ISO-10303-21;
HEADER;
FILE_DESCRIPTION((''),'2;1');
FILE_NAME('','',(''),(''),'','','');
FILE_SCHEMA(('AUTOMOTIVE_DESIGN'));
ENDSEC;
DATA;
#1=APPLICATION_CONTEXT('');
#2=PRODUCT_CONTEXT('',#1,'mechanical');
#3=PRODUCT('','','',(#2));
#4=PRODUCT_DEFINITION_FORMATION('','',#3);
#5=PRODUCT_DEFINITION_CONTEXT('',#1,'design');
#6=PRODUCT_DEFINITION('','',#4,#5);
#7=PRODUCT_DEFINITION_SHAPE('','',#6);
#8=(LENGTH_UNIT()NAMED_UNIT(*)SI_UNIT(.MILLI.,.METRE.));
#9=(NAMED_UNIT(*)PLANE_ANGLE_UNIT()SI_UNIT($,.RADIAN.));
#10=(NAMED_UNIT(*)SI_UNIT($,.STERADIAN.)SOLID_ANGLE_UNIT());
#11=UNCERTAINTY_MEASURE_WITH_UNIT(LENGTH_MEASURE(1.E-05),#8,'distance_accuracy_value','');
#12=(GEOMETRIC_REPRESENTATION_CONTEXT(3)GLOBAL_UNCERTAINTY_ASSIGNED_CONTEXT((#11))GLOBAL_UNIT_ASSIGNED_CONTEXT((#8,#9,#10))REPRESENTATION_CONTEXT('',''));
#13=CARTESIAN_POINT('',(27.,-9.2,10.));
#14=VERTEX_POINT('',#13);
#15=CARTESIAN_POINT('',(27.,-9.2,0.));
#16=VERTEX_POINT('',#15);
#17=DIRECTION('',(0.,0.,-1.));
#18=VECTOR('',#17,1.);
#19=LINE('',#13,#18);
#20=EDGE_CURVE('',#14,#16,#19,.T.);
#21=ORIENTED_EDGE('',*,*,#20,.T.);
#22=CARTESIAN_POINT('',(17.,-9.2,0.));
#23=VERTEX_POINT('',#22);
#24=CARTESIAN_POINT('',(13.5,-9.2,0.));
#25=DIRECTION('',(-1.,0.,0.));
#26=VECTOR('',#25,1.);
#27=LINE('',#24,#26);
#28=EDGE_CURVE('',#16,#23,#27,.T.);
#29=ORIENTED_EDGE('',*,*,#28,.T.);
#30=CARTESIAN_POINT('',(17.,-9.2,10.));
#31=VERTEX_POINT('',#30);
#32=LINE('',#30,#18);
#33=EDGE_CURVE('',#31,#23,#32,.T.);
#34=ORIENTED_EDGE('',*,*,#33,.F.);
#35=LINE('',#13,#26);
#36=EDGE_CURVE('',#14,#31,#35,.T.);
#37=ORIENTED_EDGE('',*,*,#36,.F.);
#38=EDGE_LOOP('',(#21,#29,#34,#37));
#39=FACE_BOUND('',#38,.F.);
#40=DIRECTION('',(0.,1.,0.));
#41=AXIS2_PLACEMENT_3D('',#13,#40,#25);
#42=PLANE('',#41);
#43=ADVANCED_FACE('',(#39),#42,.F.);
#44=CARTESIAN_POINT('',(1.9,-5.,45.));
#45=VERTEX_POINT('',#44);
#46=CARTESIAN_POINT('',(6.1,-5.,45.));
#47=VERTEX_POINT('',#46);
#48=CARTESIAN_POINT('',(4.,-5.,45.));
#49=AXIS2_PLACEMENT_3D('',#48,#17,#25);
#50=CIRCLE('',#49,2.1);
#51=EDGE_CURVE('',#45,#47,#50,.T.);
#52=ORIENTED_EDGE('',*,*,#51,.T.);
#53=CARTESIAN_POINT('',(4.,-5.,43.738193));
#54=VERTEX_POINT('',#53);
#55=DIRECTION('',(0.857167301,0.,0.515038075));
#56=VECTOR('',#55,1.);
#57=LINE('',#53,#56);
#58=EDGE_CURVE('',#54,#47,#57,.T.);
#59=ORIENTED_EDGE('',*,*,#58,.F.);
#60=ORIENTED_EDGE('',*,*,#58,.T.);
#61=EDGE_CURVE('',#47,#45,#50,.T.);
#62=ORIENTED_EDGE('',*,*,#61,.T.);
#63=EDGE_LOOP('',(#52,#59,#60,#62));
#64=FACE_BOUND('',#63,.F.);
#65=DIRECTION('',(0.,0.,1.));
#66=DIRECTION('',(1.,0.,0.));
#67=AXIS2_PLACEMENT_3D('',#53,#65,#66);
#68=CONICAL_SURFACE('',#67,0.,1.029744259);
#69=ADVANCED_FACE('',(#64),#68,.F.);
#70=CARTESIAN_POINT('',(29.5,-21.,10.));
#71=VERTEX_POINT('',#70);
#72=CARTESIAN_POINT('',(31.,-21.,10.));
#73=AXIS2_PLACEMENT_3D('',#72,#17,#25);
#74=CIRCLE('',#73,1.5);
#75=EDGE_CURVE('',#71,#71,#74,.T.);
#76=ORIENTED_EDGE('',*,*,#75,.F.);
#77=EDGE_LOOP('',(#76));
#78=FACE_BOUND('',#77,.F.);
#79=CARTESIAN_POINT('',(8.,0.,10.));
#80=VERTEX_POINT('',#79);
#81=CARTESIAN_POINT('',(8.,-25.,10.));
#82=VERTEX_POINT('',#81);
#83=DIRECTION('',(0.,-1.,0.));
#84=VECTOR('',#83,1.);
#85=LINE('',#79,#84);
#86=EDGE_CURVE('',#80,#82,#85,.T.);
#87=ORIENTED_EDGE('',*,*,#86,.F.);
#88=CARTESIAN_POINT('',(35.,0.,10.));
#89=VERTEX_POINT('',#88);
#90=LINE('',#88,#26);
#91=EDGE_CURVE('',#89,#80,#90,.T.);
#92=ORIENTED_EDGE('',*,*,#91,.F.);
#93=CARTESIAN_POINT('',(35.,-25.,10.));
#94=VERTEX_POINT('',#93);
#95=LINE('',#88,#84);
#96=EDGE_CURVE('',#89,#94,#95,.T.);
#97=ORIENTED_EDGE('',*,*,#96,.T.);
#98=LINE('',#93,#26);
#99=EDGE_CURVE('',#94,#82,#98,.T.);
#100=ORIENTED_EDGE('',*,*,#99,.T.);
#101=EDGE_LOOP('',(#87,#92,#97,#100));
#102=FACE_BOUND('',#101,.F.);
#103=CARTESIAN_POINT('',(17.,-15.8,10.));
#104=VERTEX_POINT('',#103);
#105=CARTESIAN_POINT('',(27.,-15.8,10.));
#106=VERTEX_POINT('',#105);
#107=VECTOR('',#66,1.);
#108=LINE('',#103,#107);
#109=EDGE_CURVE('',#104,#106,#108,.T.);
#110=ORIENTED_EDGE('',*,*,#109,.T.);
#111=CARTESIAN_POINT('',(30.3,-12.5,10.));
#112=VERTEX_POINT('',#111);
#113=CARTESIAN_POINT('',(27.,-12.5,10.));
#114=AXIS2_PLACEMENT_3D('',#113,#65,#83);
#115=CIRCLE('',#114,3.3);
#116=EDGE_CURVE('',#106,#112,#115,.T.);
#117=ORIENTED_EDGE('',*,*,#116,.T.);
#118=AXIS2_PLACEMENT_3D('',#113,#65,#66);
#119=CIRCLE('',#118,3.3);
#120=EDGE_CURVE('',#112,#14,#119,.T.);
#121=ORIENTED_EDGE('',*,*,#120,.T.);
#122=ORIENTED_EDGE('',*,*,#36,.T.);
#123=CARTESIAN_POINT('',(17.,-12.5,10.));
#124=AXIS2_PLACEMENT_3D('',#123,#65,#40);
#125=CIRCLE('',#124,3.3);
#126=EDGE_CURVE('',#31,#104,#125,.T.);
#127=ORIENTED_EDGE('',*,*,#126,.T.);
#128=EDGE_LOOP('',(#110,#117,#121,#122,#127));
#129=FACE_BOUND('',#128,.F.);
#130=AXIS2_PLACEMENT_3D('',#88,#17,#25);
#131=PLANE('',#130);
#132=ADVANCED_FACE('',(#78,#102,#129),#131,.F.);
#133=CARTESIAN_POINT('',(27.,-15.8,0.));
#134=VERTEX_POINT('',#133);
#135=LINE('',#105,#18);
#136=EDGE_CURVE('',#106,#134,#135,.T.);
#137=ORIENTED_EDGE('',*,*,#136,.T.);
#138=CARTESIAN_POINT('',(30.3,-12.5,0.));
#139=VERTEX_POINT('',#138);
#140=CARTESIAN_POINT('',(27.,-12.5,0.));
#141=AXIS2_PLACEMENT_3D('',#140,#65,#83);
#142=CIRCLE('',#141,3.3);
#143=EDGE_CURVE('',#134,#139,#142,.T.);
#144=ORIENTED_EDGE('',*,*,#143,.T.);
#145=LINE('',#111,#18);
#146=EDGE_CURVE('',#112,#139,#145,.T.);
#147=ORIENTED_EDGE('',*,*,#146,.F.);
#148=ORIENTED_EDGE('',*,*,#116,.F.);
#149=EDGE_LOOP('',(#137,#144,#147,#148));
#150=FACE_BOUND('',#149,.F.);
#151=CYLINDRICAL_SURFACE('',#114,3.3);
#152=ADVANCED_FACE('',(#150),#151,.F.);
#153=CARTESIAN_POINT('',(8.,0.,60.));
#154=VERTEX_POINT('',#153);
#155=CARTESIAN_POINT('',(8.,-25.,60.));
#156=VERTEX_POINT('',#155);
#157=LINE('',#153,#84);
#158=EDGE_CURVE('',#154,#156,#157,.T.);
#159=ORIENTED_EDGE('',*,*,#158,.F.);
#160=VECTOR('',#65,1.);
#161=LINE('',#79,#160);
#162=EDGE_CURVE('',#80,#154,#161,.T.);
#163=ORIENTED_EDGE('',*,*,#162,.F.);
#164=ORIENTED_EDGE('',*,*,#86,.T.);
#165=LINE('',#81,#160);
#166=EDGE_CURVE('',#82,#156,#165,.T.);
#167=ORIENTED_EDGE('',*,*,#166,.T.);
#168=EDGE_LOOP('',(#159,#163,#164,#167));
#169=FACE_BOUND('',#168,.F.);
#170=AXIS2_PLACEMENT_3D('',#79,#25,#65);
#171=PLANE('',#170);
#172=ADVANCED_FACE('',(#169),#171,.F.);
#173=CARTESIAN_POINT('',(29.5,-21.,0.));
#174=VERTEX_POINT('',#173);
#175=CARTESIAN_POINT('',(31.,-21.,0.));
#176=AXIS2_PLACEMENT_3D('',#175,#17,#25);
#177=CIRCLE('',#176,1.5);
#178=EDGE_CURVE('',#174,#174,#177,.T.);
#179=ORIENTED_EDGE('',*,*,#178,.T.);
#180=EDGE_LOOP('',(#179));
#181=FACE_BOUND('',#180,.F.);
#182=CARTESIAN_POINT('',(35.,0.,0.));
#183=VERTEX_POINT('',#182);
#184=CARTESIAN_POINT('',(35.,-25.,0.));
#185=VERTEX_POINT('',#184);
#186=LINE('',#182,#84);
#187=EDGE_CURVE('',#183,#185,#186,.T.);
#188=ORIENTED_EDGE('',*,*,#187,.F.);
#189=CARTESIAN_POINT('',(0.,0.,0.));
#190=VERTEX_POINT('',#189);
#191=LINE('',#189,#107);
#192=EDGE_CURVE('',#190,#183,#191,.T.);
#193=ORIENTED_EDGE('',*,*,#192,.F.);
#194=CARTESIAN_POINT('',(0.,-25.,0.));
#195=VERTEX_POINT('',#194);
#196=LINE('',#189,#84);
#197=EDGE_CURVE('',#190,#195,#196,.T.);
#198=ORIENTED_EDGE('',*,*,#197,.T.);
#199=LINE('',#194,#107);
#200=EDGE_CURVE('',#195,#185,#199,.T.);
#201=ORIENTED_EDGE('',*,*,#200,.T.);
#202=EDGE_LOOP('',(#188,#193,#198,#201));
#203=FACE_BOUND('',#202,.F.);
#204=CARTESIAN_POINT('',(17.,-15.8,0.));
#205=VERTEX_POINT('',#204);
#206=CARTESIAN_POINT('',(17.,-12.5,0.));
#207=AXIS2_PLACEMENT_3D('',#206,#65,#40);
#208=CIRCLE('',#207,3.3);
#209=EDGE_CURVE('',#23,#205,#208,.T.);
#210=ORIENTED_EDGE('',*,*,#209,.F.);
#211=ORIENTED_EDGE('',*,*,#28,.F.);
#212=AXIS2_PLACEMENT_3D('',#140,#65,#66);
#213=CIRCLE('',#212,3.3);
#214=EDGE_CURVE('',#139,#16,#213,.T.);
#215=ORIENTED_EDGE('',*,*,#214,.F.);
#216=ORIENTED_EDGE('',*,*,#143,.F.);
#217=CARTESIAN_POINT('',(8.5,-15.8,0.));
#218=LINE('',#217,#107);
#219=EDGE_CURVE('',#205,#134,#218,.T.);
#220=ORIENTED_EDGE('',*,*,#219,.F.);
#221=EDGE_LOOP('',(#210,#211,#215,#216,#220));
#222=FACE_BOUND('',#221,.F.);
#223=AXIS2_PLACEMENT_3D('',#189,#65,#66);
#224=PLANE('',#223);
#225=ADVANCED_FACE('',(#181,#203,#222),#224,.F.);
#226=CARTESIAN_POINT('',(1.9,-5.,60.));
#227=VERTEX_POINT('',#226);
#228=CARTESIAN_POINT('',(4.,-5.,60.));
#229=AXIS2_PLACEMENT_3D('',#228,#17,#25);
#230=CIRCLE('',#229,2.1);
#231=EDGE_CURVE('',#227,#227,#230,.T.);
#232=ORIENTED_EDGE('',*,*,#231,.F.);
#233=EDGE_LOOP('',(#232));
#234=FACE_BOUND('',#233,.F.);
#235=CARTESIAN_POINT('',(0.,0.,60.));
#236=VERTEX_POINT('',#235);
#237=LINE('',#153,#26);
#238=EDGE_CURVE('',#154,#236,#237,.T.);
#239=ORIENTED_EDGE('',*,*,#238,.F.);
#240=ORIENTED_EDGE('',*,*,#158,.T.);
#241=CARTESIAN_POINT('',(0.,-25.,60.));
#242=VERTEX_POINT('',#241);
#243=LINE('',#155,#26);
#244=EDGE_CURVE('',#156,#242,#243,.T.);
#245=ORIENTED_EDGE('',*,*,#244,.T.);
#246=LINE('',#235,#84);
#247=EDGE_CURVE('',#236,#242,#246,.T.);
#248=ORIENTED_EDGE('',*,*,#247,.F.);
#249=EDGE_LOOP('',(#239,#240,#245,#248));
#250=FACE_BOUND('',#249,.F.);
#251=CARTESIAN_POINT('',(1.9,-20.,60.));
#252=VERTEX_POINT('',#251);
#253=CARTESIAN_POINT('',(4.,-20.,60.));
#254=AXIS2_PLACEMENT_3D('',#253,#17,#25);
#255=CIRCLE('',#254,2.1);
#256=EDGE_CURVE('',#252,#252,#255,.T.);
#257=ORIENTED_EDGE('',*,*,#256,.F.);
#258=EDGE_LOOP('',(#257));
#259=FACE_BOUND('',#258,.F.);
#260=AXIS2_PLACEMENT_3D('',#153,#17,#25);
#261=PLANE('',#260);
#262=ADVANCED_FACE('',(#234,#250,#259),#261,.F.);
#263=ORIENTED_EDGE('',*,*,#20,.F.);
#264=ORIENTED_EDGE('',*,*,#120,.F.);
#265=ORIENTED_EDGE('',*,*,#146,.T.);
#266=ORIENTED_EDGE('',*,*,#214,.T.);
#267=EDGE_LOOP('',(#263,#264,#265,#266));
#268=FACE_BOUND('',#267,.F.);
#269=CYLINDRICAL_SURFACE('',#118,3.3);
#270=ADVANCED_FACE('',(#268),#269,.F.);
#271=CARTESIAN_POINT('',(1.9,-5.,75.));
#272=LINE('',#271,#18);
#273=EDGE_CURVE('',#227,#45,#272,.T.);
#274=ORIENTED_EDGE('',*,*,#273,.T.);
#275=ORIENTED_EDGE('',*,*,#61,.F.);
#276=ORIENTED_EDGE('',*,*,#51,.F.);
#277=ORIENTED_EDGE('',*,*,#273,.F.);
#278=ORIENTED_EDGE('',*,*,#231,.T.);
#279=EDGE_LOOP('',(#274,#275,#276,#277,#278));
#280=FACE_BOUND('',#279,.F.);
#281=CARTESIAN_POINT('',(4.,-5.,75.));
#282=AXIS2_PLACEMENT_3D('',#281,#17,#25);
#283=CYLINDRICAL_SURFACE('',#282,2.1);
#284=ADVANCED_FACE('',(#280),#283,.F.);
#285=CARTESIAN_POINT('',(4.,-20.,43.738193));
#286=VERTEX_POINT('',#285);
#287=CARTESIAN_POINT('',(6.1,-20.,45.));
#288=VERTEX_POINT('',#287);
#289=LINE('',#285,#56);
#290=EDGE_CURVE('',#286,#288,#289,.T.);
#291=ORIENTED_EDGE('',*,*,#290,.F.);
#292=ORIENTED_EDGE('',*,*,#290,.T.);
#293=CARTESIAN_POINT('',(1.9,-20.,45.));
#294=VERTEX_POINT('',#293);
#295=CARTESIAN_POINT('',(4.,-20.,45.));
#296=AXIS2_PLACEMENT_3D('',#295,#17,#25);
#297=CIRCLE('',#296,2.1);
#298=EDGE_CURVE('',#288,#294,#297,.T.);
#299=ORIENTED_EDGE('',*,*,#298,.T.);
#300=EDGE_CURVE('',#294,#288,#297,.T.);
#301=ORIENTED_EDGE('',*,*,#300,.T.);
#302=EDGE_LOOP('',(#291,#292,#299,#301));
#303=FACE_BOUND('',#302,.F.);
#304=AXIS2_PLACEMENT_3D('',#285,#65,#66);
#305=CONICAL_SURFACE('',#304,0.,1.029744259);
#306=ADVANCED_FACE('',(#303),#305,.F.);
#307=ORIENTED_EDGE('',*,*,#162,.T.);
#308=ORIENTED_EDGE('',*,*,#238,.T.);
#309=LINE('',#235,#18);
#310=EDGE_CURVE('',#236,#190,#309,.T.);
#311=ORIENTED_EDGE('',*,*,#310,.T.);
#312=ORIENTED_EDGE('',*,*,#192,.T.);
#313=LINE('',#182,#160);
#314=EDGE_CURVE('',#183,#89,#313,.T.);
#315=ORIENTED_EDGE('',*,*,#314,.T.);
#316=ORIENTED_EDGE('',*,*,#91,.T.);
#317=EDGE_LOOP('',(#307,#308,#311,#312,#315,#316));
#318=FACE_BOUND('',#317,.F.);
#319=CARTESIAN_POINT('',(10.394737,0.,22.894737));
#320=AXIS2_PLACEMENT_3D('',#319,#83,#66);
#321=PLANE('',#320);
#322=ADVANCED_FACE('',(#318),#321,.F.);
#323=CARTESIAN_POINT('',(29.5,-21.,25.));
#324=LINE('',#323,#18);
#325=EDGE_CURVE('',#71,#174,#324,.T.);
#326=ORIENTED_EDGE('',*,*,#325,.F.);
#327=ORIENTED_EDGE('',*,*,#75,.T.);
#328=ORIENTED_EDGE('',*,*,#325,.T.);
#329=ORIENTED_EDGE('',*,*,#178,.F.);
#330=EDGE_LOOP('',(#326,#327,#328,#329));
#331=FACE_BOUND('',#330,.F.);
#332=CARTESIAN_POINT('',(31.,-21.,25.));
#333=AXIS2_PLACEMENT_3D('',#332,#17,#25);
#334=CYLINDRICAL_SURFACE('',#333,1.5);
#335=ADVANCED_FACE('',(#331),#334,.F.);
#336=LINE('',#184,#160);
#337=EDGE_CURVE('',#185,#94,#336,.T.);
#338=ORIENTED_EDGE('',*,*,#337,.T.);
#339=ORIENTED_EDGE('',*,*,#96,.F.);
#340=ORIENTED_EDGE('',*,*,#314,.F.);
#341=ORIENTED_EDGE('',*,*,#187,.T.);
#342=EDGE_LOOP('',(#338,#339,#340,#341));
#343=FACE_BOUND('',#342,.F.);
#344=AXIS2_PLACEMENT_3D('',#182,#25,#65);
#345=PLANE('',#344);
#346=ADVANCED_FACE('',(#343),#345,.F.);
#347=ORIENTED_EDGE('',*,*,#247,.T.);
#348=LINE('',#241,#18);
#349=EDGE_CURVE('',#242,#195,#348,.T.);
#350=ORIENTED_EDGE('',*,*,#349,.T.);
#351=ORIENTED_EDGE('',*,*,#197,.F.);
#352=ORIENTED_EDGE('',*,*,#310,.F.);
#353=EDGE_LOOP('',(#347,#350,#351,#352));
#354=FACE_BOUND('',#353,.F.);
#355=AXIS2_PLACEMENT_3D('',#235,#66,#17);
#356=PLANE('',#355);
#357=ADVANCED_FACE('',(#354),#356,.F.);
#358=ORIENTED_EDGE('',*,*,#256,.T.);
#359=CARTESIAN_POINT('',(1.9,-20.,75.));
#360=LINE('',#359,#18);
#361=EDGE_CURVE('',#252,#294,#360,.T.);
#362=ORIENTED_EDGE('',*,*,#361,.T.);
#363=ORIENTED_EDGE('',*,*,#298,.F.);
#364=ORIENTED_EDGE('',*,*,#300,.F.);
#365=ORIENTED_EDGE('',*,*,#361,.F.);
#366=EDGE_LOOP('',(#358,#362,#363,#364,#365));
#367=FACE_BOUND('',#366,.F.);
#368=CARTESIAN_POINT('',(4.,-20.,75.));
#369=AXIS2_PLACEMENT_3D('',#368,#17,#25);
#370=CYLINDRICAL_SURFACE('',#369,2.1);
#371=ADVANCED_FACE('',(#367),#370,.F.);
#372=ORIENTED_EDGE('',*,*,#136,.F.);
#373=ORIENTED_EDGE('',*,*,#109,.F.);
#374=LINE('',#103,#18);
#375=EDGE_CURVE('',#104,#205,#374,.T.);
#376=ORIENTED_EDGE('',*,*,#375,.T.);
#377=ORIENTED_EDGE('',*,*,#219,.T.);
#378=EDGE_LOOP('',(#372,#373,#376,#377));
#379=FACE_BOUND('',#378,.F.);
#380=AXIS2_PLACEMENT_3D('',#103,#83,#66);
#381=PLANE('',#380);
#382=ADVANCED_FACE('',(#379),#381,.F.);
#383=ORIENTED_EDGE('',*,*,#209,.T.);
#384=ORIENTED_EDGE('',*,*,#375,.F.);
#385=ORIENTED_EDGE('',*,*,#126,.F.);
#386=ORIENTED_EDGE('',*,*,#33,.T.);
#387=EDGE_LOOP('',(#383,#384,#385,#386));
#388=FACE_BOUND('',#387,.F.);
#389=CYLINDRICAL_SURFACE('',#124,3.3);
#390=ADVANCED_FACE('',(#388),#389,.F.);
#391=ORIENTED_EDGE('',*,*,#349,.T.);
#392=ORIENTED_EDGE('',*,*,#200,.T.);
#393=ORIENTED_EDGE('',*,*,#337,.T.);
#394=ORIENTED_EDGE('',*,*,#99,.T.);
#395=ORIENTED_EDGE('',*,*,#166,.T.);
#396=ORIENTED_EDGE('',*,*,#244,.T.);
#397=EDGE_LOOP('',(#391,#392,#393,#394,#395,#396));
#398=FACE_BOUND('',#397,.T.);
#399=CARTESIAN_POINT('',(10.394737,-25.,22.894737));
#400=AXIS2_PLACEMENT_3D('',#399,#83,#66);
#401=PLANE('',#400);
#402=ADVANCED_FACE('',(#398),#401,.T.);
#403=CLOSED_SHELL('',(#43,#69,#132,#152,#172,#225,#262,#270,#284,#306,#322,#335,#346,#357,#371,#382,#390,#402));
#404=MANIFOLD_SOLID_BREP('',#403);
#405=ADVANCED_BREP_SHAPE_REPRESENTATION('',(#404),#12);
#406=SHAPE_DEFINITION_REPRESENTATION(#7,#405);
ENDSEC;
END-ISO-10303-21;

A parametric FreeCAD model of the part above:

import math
import FreeCAD as App
import Part
import Sketcher

V = App.Vector
Q = App.Units.Quantity


def add_polygon(sketch, points):
    """Adds a closed chain of lines whose ends are joined by coincident constraints."""
    first, n = sketch.GeometryCount, len(points)
    for a, b in zip(points, points[1:] + points[:1]):
        sketch.addGeometry(Part.LineSegment(App.Vector(*a, 0), App.Vector(*b, 0)), False)
    for i in range(n):
        sketch.addConstraint(Sketcher.Constraint("Coincident", first + i, 2, first + (i + 1) % n, 1))

doc = App.newDocument("Part")
body = doc.addObject("PartDesign::Body", "Body")

sketch1 = body.newObject("Sketcher::SketchObject", "Sketch")
sketch1.AttachmentSupport = (doc.getObject("XZ_Plane"), [""])
sketch1.MapMode = "FlatFace"
add_polygon(sketch1, [(0, 60), (0, 0), (35, 0), (35, 10), (8, 10), (8, 60)])
sketch1.addConstraint(Sketcher.Constraint("Vertical", 0))
sketch1.addConstraint(Sketcher.Constraint("Horizontal", 1))
sketch1.addConstraint(Sketcher.Constraint("Vertical", 2))
sketch1.addConstraint(Sketcher.Constraint("Horizontal", 3))
sketch1.addConstraint(Sketcher.Constraint("Vertical", 4))
sketch1.addConstraint(Sketcher.Constraint("Horizontal", 5))
sketch1.addConstraint(Sketcher.Constraint("Coincident", 0, 2, -1, 1))
sketch1.addConstraint(Sketcher.Constraint("DistanceX", 1, 1, 1, 2, Q("35 mm")))
sketch1.addConstraint(Sketcher.Constraint("DistanceX", 3, 2, 3, 1, Q("27 mm")))
sketch1.addConstraint(Sketcher.Constraint("DistanceY", 0, 2, 0, 1, Q("60 mm")))
sketch1.addConstraint(Sketcher.Constraint("DistanceY", 2, 1, 2, 2, Q("10 mm")))
pad1 = body.newObject("PartDesign::Pad", "Pad")
pad1.Profile = sketch1
pad1.Length = 25

sketch2 = body.newObject("Sketcher::SketchObject", "Sketch001")
sketch2.AttachmentSupport = (doc.getObject("XY_Plane"), [""])
sketch2.MapMode = "FlatFace"
sketch2.AttachmentOffset = App.Placement(V(0, 0, 60), App.Rotation())
sketch2.addGeometry(Part.Circle(V(4, -5, 0), V(0, 0, 1), 2.1), False)
sketch2.addGeometry(Part.Circle(V(4, -20, 0), V(0, 0, 1), 2.1), False)
sketch2.addConstraint(Sketcher.Constraint("Equal", 0, 1))
sketch2.addConstraint(Sketcher.Constraint("Vertical", 0, 3, 1, 3))
sketch2.addConstraint(Sketcher.Constraint("Diameter", 0, Q("4.2 mm")))
sketch2.addConstraint(Sketcher.Constraint("DistanceX", -1, 1, 0, 3, Q("4 mm")))
sketch2.addConstraint(Sketcher.Constraint("DistanceY", 0, 3, -1, 1, Q("5 mm")))
sketch2.addConstraint(Sketcher.Constraint("DistanceY", 1, 3, -1, 1, Q("20 mm")))
doc.recompute()
hole = body.newObject("PartDesign::Hole", "Hole")
hole.Profile = sketch2
hole.ThreadType = "None"
hole.Diameter = 4.2
hole.DepthType = "Dimension"
hole.Depth = 15
hole.DrillPoint = "Angled"
hole.DrillPointAngle = 118

sketch3 = body.newObject("Sketcher::SketchObject", "Sketch002")
sketch3.AttachmentSupport = (doc.getObject("XY_Plane"), [""])
sketch3.MapMode = "FlatFace"
sketch3.AttachmentOffset = App.Placement(V(0, 0, 10), App.Rotation())
sketch3.addGeometry(Part.ArcOfCircle(Part.Circle(V(27, -12.5, 0), V(0, 0, 1), 3.3), math.radians(-90), math.radians(0)), False)
sketch3.addGeometry(Part.ArcOfCircle(Part.Circle(V(27, -12.5, 0), V(0, 0, 1), 3.3), math.radians(0), math.radians(90)), False)
sketch3.addGeometry(Part.LineSegment(V(27, -9.2, 0), V(17, -9.2, 0)), False)
sketch3.addGeometry(Part.ArcOfCircle(Part.Circle(V(17, -12.5, 0), V(0, 0, 1), 3.3), math.radians(90), math.radians(270)), False)
sketch3.addGeometry(Part.LineSegment(V(17, -15.8, 0), V(27, -15.8, 0)), False)
sketch3.addConstraint(Sketcher.Constraint("Tangent", 0, 2, 1, 1))
sketch3.addConstraint(Sketcher.Constraint("Tangent", 1, 2, 2, 1))
sketch3.addConstraint(Sketcher.Constraint("Tangent", 2, 2, 3, 1))
sketch3.addConstraint(Sketcher.Constraint("Tangent", 3, 2, 4, 1))
sketch3.addConstraint(Sketcher.Constraint("Tangent", 4, 2, 0, 1))
sketch3.addConstraint(Sketcher.Constraint("Horizontal", 2))
sketch3.addConstraint(Sketcher.Constraint("Horizontal", 4))
sketch3.addConstraint(Sketcher.Constraint("Equal", 0, 1))
sketch3.addConstraint(Sketcher.Constraint("Horizontal", 3, 3, 0, 2))
sketch3.addConstraint(Sketcher.Constraint("Radius", 0, Q("3.3 mm")))
sketch3.addConstraint(Sketcher.Constraint("DistanceX", 2, 2, 2, 1, Q("10 mm")))
sketch3.addConstraint(Sketcher.Constraint("DistanceX", -1, 1, 0, 3, Q("27 mm")))
sketch3.addConstraint(Sketcher.Constraint("DistanceY", 0, 3, -1, 1, Q("12.5 mm")))
pocket1 = body.newObject("PartDesign::Pocket", "Pocket")
pocket1.Profile = sketch3
pocket1.Length = 25

sketch4 = body.newObject("Sketcher::SketchObject", "Sketch003")
sketch4.AttachmentSupport = (doc.getObject("XY_Plane"), [""])
sketch4.MapMode = "FlatFace"
sketch4.AttachmentOffset = App.Placement(V(0, 0, 10), App.Rotation())
sketch4.addGeometry(Part.Circle(V(31, -21, 0), V(0, 0, 1), 1.5), False)
sketch4.addConstraint(Sketcher.Constraint("Diameter", 0, Q("3 mm")))
sketch4.addConstraint(Sketcher.Constraint("DistanceX", -1, 1, 0, 3, Q("31 mm")))
sketch4.addConstraint(Sketcher.Constraint("DistanceY", 0, 3, -1, 1, Q("21 mm")))
doc.recompute()
hole2 = body.newObject("PartDesign::Hole", "Hole001")
hole2.Profile = sketch4
hole2.ThreadType = "None"
hole2.Diameter = 3
hole2.DepthType = "Dimension"
hole2.Depth = 15
hole2.DrillPoint = "Angled"
hole2.DrillPointAngle = 118

doc.recompute()
